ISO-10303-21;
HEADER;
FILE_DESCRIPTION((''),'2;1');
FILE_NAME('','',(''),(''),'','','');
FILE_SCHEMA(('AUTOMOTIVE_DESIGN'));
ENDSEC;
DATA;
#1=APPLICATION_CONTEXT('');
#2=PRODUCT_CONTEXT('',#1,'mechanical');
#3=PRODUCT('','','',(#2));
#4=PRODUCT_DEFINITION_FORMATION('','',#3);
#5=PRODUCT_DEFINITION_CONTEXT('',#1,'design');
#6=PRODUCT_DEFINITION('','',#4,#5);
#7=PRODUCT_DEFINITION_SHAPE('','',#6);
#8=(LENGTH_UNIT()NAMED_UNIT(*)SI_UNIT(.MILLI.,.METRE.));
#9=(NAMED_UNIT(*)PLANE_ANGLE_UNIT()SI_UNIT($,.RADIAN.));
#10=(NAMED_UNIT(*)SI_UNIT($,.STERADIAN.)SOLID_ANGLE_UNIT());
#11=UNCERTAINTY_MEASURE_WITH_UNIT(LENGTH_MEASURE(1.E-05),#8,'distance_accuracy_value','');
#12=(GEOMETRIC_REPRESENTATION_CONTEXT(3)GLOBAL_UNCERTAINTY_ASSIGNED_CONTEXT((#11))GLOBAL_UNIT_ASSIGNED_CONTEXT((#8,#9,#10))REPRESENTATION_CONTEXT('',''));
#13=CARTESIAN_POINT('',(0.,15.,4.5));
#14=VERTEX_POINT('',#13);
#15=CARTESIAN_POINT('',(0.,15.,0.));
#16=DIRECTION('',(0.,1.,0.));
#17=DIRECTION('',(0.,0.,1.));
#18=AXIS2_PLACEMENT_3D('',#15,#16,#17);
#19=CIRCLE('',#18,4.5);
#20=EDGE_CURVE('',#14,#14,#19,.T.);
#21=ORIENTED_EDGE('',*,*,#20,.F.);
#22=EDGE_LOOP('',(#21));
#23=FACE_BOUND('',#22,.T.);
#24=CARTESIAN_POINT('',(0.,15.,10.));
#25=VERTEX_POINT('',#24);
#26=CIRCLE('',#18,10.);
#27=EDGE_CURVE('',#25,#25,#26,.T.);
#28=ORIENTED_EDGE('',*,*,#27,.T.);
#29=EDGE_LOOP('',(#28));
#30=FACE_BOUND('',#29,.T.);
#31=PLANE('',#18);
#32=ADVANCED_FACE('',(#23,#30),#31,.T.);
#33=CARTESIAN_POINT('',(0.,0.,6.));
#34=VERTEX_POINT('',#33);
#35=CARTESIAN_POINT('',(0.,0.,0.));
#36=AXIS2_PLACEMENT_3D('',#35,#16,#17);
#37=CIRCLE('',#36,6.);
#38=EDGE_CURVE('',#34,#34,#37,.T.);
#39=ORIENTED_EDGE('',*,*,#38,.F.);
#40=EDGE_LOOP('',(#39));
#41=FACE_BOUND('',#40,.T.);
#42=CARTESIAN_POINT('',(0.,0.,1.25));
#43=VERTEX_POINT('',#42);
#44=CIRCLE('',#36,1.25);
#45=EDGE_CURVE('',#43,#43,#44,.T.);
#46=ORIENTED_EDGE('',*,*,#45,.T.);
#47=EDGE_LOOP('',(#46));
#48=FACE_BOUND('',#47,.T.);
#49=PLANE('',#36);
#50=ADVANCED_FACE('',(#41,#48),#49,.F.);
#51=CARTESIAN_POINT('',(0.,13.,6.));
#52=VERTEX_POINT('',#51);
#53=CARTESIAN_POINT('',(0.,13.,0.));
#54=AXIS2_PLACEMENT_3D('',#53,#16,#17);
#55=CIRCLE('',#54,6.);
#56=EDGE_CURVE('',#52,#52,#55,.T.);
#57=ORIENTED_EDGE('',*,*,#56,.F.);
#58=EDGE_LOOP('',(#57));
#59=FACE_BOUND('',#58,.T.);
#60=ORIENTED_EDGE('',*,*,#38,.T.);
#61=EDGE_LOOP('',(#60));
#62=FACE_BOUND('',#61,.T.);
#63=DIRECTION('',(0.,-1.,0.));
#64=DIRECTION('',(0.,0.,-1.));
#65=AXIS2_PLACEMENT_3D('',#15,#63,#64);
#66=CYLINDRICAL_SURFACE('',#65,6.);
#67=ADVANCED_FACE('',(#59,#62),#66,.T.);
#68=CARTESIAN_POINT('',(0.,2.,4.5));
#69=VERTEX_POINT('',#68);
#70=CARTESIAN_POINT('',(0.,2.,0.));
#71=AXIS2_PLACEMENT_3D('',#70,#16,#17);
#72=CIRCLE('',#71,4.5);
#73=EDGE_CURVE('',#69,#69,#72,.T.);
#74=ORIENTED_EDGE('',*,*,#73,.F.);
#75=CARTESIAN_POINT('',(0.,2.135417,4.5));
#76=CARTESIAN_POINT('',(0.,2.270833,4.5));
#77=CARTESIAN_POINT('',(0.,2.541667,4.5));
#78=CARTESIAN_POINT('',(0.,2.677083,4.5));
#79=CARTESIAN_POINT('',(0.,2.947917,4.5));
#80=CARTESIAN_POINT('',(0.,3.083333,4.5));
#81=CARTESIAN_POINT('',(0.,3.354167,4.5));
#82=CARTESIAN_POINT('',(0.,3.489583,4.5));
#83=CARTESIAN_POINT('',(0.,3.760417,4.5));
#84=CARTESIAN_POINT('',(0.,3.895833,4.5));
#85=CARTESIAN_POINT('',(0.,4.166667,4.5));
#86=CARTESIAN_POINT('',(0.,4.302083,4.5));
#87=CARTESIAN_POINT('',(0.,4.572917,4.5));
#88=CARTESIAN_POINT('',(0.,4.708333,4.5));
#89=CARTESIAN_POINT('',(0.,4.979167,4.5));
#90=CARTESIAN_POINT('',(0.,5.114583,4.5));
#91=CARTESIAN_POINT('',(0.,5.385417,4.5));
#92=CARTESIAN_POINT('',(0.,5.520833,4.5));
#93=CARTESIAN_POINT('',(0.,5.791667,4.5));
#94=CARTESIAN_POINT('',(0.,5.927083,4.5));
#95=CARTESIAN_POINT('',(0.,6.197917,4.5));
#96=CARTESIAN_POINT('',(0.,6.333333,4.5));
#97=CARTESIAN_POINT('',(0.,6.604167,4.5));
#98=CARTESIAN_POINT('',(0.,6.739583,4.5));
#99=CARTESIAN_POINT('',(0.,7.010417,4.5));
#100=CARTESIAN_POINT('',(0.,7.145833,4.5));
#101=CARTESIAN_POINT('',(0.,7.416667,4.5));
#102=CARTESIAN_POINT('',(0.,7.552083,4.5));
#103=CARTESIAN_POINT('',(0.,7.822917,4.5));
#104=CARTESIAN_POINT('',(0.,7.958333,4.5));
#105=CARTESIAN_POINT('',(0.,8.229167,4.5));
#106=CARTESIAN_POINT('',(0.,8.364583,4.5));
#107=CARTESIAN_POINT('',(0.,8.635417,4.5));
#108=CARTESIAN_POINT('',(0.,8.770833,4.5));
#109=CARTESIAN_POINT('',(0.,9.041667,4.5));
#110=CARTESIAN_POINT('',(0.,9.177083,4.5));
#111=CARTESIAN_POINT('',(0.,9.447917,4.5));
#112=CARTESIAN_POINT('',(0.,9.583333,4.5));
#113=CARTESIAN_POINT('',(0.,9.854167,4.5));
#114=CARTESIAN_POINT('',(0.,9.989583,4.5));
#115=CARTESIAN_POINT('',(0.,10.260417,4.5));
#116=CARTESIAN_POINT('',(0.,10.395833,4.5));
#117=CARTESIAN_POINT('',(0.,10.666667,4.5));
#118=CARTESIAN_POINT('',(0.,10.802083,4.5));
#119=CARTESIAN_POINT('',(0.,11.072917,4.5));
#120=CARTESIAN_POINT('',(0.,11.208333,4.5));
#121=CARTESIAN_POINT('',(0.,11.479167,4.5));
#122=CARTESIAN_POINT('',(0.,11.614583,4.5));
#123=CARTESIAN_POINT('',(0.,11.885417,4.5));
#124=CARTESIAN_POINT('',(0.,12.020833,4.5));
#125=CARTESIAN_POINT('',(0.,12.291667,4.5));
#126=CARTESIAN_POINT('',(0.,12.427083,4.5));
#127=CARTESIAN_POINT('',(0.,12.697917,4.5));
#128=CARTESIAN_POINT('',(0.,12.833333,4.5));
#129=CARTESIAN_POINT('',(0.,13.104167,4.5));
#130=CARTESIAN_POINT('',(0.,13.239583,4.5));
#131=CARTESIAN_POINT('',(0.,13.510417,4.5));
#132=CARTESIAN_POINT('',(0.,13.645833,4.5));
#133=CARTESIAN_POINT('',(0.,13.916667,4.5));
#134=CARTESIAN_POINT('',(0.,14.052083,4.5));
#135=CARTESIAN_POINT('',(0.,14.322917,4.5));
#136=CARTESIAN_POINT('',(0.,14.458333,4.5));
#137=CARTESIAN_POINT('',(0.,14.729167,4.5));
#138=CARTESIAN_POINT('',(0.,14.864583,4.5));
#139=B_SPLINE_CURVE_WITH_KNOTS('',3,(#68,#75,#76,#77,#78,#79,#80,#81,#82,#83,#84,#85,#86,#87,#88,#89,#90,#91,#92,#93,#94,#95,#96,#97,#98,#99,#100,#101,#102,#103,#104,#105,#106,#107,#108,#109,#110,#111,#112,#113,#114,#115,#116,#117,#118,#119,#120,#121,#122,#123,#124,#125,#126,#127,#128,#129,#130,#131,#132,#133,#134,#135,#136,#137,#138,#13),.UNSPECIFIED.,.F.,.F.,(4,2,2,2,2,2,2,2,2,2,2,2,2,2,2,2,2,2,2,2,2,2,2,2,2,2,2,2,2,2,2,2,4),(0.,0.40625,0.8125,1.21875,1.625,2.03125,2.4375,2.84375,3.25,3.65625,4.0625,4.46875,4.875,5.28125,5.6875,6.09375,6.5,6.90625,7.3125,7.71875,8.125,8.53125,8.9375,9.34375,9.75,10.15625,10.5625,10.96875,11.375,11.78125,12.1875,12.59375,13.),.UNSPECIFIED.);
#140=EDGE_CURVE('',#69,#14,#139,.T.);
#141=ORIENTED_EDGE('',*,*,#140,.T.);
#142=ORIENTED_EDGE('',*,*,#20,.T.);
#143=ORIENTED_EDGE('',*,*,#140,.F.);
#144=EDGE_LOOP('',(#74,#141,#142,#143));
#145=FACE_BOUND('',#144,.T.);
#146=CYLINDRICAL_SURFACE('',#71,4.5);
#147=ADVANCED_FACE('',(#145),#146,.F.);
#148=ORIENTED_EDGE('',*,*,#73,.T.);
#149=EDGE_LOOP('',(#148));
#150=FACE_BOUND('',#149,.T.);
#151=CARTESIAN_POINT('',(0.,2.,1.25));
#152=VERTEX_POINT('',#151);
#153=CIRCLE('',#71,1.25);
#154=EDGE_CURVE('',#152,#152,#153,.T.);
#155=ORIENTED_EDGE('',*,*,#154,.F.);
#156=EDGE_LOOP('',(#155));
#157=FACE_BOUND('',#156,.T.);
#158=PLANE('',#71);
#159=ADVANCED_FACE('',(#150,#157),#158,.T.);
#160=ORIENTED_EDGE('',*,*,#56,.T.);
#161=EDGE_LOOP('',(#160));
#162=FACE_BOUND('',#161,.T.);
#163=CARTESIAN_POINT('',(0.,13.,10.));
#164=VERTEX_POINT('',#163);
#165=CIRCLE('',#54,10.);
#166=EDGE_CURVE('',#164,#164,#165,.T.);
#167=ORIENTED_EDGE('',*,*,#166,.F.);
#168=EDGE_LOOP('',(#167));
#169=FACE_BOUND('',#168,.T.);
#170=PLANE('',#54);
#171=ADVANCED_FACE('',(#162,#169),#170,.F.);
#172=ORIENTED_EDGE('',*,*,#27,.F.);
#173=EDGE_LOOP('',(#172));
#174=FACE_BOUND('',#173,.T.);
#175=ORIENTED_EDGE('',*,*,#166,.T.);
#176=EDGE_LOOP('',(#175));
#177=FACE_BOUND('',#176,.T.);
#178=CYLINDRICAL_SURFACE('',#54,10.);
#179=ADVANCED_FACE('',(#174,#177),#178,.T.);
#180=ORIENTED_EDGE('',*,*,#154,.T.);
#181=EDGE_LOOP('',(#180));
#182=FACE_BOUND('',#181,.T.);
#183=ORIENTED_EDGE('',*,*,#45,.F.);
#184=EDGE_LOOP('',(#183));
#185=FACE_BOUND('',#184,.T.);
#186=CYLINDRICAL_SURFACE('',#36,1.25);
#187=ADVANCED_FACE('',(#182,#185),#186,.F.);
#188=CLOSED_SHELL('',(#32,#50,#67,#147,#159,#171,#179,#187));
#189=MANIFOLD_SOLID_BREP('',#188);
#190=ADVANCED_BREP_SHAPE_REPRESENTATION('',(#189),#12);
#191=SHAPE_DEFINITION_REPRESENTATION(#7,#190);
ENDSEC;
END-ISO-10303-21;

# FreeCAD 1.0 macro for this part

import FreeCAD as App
import Part
import Sketcher
Q = App.Units.Quantity

doc = App.newDocument("Part")
body = doc.addObject("PartDesign::Body", "Body")

# Sketch on XZ plane
sketch1 = body.newObject("Sketcher::SketchObject", "Sketch")
sketch1.AttachmentSupport = (doc.getObject("XZ_Plane"), [""])
sketch1.MapMode = "FlatFace"
sketch1.addGeometry(Part.Circle(App.Vector(0, 0, 0), App.Vector(0, 0, 1), 6), False)
sketch1.addConstraint(Sketcher.Constraint("Coincident", 0, 3, -1, 1))
sketch1.addConstraint(Sketcher.Constraint("Diameter", 0, Q("12 mm")))
pad1 = body.newObject("PartDesign::Pad", "Pad")
pad1.Profile = sketch1
pad1.Length = 15
pad1.Reversed = True

# Sketch on XZ plane
sketch2 = body.newObject("Sketcher::SketchObject", "Sketch001")
sketch2.AttachmentSupport = (doc.getObject("XZ_Plane"), [""])
sketch2.MapMode = "FlatFace"
sketch2.AttachmentOffset = App.Placement(App.Vector(0, 0, -15), App.Rotation())
sketch2.addGeometry(Part.Circle(App.Vector(0, 0, 0), App.Vector(0, 0, 1), 10), False)
sketch2.addConstraint(Sketcher.Constraint("Coincident", 0, 3, -1, 1))
sketch2.addConstraint(Sketcher.Constraint("Diameter", 0, Q("20 mm")))
pad2 = body.newObject("PartDesign::Pad", "Pad001")
pad2.Profile = sketch2
pad2.Length = 2

# Sketch on XZ plane
sketch3 = body.newObject("Sketcher::SketchObject", "Sketch002")
sketch3.AttachmentSupport = (doc.getObject("XZ_Plane"), [""])
sketch3.MapMode = "FlatFace"
sketch3.AttachmentOffset = App.Placement(App.Vector(0, 0, -15), App.Rotation())
sketch3.addGeometry(Part.Circle(App.Vector(0, 0, 0), App.Vector(0, 0, 1), 4.5), False)
sketch3.addConstraint(Sketcher.Constraint("Coincident", 0, 3, -1, 1))
sketch3.addConstraint(Sketcher.Constraint("Diameter", 0, Q("9 mm")))
pocket1 = body.newObject("PartDesign::Pocket", "Pocket")
pocket1.Profile = sketch3
pocket1.Length = 13
pocket1.Reversed = True

# Sketch on XZ plane
sketch4 = body.newObject("Sketcher::SketchObject", "Sketch003")
sketch4.AttachmentSupport = (doc.getObject("XZ_Plane"), [""])
sketch4.MapMode = "FlatFace"
sketch4.AttachmentOffset = App.Placement(App.Vector(0, 0, -2), App.Rotation())
sketch4.addGeometry(Part.Circle(App.Vector(0, 0, 0), App.Vector(0, 0, 1), 1.25), False)
sketch4.addConstraint(Sketcher.Constraint("Coincident", 0, 3, -1, 1))
sketch4.addConstraint(Sketcher.Constraint("Diameter", 0, Q("2.5 mm")))
pocket2 = body.newObject("PartDesign::Pocket", "Pocket001")
pocket2.Profile = sketch4
pocket2.Type = "ThroughAll"
pocket2.Reversed = True

doc.recompute()
